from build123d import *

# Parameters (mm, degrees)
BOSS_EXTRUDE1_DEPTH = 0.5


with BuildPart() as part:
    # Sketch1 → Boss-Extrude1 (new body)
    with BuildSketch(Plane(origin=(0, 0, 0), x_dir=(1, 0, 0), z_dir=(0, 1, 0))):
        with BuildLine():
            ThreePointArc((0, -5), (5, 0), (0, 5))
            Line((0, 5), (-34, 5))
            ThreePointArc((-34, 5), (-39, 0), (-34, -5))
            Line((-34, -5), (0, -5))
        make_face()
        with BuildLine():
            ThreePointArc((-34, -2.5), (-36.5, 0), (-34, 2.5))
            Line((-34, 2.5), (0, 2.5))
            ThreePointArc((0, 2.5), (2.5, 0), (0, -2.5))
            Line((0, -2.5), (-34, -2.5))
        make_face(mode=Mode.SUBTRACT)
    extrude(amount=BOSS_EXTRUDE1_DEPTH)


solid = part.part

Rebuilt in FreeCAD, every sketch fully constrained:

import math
import FreeCAD as App
import Part
import Sketcher

doc = App.newDocument("Part")
body = doc.addObject("PartDesign::Body", "Body")

# Sketch on XZ plane
sketch1 = body.newObject("Sketcher::SketchObject", "Sketch")
sketch1.AttachmentSupport = (doc.getObject("XZ_Plane"), [""])
sketch1.MapMode = "FlatFace"
sketch1.addGeometry(Part.ArcOfCircle(Part.Circle(App.Vector(0, 0, 0), App.Vector(0, 0, 1), 5), math.radians(-90), math.radians(90)), False)
sketch1.addGeometry(Part.LineSegment(App.Vector(0, -5, 0), App.Vector(-34, -5, 0)), False)
sketch1.addGeometry(Part.ArcOfCircle(Part.Circle(App.Vector(-34, 0, 0), App.Vector(0, 0, 1), 5), math.radians(90), math.radians(270)), False)
sketch1.addGeometry(Part.LineSegment(App.Vector(-34, 5, 0), App.Vector(0, 5, 0)), False)
sketch1.addGeometry(Part.LineSegment(App.Vector(0, 2.5, 0), App.Vector(-34, 2.5, 0)), False)
sketch1.addGeometry(Part.ArcOfCircle(Part.Circle(App.Vector(-34, 0, 0), App.Vector(0, 0, 1), 2.5), math.radians(90), math.radians(270)), False)
sketch1.addGeometry(Part.LineSegment(App.Vector(-34, -2.5, 0), App.Vector(0, -2.5, 0)), False)
sketch1.addGeometry(Part.ArcOfCircle(Part.Circle(App.Vector(0, 0, 0), App.Vector(0, 0, 1), 2.5), math.radians(-90), math.radians(90)), False)
sketch1.addConstraint(Sketcher.Constraint("Tangent", 0, 1, 1, 1))
sketch1.addConstraint(Sketcher.Constraint("Tangent", 1, 2, 2, 2))
sketch1.addConstraint(Sketcher.Constraint("Tangent", 2, 1, 3, 1))
sketch1.addConstraint(Sketcher.Constraint("Tangent", 3, 2, 0, 2))
sketch1.addConstraint(Sketcher.Constraint("Tangent", 4, 2, 5, 1))
sketch1.addConstraint(Sketcher.Constraint("Tangent", 5, 2, 6, 1))
sketch1.addConstraint(Sketcher.Constraint("Tangent", 6, 2, 7, 1))
sketch1.addConstraint(Sketcher.Constraint("Tangent", 7, 2, 4, 1))
sketch1.addConstraint(Sketcher.Constraint("Horizontal", 1))
sketch1.addConstraint(Sketcher.Constraint("Horizontal", 3))
sketch1.addConstraint(Sketcher.Constraint("Horizontal", 4))
sketch1.addConstraint(Sketcher.Constraint("Horizontal", 6))
sketch1.addConstraint(Sketcher.Constraint("Coincident", 0, 3, -1, 1))
sketch1.addConstraint(Sketcher.Constraint("Coincident", 7, 3, -1, 1))
sketch1.addConstraint(Sketcher.Constraint("Vertical", 5, 3, 1, 2))
sketch1.addConstraint(Sketcher.Constraint("Radius", 0, 5.0))
sketch1.addConstraint(Sketcher.Constraint("Radius", 5, 2.5))
sketch1.addConstraint(Sketcher.Constraint("DistanceX", 1, 2, 1, 1, 34.0))
pad1 = body.newObject("PartDesign::Pad", "Pad")
pad1.Profile = sketch1
pad1.Length = 0.5
pad1.Reversed = True

doc.recompute()
